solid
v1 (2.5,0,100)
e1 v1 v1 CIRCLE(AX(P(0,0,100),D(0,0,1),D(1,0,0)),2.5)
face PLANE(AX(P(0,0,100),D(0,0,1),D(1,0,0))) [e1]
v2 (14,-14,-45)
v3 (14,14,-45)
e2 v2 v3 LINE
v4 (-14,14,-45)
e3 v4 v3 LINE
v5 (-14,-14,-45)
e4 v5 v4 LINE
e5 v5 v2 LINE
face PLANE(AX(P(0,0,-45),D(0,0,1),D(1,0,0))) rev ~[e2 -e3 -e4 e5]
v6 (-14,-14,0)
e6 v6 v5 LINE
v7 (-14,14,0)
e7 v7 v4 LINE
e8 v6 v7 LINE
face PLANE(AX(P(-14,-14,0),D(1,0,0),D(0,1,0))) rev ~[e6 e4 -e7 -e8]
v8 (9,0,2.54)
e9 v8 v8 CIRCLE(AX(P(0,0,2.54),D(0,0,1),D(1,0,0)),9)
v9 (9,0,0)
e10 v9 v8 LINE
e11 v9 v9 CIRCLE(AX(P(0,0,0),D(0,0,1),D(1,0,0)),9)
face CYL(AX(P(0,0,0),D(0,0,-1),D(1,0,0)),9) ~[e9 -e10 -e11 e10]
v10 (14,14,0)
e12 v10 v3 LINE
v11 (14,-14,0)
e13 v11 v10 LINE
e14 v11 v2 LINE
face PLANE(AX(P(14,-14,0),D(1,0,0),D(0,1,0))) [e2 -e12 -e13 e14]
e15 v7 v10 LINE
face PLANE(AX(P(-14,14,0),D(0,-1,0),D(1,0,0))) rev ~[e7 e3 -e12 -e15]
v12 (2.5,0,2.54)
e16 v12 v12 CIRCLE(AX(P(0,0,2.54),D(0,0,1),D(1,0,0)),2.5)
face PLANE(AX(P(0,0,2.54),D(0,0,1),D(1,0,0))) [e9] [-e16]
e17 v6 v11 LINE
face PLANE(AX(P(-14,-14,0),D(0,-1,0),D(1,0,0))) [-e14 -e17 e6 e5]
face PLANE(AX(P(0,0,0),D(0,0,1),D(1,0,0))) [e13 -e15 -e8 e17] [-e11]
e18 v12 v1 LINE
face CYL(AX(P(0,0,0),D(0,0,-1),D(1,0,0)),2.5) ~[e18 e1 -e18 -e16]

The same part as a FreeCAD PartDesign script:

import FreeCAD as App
import Part
import Sketcher


def add_polygon(sketch, points):
    """Adds a closed chain of lines whose ends are joined by coincident constraints."""
    first, n = sketch.GeometryCount, len(points)
    for a, b in zip(points, points[1:] + points[:1]):
        sketch.addGeometry(Part.LineSegment(App.Vector(*a, 0), App.Vector(*b, 0)), False)
    for i in range(n):
        sketch.addConstraint(Sketcher.Constraint("Coincident", first + i, 2, first + (i + 1) % n, 1))

doc = App.newDocument("Part")
body = doc.addObject("PartDesign::Body", "Body")

sketch1 = doc.addObject("Sketcher::SketchObject", "Sketch")
body.addObject(sketch1)
sketch1.AttachmentSupport = (doc.XY_Plane, [""])
sketch1.MapMode = "FlatFace"
add_polygon(sketch1, [(-14, 14), (-14, -14), (14, -14), (14, 14)])
sketch1.addConstraint(Sketcher.Constraint("Vertical", 0))
sketch1.addConstraint(Sketcher.Constraint("Horizontal", 1))
sketch1.addConstraint(Sketcher.Constraint("Vertical", 2))
sketch1.addConstraint(Sketcher.Constraint("Horizontal", 3))
sketch1.addConstraint(Sketcher.Constraint("Symmetric", 0, 2, 2, 2, -1, 1))
sketch1.addConstraint(Sketcher.Constraint("Equal", 3, 0))
sketch1.addConstraint(Sketcher.Constraint("DistanceX", 1, 1, 1, 2, 28.0))
pad1 = doc.addObject("PartDesign::Pad", "Pad")
body.addObject(pad1)
pad1.Profile = sketch1
pad1.Length = 45
pad1.Reversed = True

sketch2 = doc.addObject("Sketcher::SketchObject", "Sketch001")
body.addObject(sketch2)
sketch2.AttachmentSupport = (doc.XY_Plane, [""])
sketch2.MapMode = "FlatFace"
sketch2.addGeometry(Part.Circle(App.Vector(0, 0, 0), App.Vector(0, 0, 1), 2.5), False)
sketch2.addConstraint(Sketcher.Constraint("Coincident", 0, 3, -1, 1))
sketch2.addConstraint(Sketcher.Constraint("Diameter", 0, 5.0))
pad2 = doc.addObject("PartDesign::Pad", "Pad001")
body.addObject(pad2)
pad2.Profile = sketch2
pad2.Length = 100

sketch3 = doc.addObject("Sketcher::SketchObject", "Sketch002")
body.addObject(sketch3)
sketch3.AttachmentSupport = (doc.XY_Plane, [""])
sketch3.MapMode = "FlatFace"
sketch3.addGeometry(Part.Circle(App.Vector(0, 0, 0), App.Vector(0, 0, 1), 9), False)
sketch3.addGeometry(Part.Circle(App.Vector(0, 0, 0), App.Vector(0, 0, 1), 2.5), False)
sketch3.addConstraint(Sketcher.Constraint("Coincident", 0, 3, -1, 1))
sketch3.addConstraint(Sketcher.Constraint("Coincident", 1, 3, -1, 1))
sketch3.addConstraint(Sketcher.Constraint("Diameter", 0, 18.0))
sketch3.addConstraint(Sketcher.Constraint("Diameter", 1, 5.0))
pad3 = doc.addObject("PartDesign::Pad", "Pad002")
body.addObject(pad3)
pad3.Profile = sketch3
pad3.Length = 2.54

doc.recompute()
